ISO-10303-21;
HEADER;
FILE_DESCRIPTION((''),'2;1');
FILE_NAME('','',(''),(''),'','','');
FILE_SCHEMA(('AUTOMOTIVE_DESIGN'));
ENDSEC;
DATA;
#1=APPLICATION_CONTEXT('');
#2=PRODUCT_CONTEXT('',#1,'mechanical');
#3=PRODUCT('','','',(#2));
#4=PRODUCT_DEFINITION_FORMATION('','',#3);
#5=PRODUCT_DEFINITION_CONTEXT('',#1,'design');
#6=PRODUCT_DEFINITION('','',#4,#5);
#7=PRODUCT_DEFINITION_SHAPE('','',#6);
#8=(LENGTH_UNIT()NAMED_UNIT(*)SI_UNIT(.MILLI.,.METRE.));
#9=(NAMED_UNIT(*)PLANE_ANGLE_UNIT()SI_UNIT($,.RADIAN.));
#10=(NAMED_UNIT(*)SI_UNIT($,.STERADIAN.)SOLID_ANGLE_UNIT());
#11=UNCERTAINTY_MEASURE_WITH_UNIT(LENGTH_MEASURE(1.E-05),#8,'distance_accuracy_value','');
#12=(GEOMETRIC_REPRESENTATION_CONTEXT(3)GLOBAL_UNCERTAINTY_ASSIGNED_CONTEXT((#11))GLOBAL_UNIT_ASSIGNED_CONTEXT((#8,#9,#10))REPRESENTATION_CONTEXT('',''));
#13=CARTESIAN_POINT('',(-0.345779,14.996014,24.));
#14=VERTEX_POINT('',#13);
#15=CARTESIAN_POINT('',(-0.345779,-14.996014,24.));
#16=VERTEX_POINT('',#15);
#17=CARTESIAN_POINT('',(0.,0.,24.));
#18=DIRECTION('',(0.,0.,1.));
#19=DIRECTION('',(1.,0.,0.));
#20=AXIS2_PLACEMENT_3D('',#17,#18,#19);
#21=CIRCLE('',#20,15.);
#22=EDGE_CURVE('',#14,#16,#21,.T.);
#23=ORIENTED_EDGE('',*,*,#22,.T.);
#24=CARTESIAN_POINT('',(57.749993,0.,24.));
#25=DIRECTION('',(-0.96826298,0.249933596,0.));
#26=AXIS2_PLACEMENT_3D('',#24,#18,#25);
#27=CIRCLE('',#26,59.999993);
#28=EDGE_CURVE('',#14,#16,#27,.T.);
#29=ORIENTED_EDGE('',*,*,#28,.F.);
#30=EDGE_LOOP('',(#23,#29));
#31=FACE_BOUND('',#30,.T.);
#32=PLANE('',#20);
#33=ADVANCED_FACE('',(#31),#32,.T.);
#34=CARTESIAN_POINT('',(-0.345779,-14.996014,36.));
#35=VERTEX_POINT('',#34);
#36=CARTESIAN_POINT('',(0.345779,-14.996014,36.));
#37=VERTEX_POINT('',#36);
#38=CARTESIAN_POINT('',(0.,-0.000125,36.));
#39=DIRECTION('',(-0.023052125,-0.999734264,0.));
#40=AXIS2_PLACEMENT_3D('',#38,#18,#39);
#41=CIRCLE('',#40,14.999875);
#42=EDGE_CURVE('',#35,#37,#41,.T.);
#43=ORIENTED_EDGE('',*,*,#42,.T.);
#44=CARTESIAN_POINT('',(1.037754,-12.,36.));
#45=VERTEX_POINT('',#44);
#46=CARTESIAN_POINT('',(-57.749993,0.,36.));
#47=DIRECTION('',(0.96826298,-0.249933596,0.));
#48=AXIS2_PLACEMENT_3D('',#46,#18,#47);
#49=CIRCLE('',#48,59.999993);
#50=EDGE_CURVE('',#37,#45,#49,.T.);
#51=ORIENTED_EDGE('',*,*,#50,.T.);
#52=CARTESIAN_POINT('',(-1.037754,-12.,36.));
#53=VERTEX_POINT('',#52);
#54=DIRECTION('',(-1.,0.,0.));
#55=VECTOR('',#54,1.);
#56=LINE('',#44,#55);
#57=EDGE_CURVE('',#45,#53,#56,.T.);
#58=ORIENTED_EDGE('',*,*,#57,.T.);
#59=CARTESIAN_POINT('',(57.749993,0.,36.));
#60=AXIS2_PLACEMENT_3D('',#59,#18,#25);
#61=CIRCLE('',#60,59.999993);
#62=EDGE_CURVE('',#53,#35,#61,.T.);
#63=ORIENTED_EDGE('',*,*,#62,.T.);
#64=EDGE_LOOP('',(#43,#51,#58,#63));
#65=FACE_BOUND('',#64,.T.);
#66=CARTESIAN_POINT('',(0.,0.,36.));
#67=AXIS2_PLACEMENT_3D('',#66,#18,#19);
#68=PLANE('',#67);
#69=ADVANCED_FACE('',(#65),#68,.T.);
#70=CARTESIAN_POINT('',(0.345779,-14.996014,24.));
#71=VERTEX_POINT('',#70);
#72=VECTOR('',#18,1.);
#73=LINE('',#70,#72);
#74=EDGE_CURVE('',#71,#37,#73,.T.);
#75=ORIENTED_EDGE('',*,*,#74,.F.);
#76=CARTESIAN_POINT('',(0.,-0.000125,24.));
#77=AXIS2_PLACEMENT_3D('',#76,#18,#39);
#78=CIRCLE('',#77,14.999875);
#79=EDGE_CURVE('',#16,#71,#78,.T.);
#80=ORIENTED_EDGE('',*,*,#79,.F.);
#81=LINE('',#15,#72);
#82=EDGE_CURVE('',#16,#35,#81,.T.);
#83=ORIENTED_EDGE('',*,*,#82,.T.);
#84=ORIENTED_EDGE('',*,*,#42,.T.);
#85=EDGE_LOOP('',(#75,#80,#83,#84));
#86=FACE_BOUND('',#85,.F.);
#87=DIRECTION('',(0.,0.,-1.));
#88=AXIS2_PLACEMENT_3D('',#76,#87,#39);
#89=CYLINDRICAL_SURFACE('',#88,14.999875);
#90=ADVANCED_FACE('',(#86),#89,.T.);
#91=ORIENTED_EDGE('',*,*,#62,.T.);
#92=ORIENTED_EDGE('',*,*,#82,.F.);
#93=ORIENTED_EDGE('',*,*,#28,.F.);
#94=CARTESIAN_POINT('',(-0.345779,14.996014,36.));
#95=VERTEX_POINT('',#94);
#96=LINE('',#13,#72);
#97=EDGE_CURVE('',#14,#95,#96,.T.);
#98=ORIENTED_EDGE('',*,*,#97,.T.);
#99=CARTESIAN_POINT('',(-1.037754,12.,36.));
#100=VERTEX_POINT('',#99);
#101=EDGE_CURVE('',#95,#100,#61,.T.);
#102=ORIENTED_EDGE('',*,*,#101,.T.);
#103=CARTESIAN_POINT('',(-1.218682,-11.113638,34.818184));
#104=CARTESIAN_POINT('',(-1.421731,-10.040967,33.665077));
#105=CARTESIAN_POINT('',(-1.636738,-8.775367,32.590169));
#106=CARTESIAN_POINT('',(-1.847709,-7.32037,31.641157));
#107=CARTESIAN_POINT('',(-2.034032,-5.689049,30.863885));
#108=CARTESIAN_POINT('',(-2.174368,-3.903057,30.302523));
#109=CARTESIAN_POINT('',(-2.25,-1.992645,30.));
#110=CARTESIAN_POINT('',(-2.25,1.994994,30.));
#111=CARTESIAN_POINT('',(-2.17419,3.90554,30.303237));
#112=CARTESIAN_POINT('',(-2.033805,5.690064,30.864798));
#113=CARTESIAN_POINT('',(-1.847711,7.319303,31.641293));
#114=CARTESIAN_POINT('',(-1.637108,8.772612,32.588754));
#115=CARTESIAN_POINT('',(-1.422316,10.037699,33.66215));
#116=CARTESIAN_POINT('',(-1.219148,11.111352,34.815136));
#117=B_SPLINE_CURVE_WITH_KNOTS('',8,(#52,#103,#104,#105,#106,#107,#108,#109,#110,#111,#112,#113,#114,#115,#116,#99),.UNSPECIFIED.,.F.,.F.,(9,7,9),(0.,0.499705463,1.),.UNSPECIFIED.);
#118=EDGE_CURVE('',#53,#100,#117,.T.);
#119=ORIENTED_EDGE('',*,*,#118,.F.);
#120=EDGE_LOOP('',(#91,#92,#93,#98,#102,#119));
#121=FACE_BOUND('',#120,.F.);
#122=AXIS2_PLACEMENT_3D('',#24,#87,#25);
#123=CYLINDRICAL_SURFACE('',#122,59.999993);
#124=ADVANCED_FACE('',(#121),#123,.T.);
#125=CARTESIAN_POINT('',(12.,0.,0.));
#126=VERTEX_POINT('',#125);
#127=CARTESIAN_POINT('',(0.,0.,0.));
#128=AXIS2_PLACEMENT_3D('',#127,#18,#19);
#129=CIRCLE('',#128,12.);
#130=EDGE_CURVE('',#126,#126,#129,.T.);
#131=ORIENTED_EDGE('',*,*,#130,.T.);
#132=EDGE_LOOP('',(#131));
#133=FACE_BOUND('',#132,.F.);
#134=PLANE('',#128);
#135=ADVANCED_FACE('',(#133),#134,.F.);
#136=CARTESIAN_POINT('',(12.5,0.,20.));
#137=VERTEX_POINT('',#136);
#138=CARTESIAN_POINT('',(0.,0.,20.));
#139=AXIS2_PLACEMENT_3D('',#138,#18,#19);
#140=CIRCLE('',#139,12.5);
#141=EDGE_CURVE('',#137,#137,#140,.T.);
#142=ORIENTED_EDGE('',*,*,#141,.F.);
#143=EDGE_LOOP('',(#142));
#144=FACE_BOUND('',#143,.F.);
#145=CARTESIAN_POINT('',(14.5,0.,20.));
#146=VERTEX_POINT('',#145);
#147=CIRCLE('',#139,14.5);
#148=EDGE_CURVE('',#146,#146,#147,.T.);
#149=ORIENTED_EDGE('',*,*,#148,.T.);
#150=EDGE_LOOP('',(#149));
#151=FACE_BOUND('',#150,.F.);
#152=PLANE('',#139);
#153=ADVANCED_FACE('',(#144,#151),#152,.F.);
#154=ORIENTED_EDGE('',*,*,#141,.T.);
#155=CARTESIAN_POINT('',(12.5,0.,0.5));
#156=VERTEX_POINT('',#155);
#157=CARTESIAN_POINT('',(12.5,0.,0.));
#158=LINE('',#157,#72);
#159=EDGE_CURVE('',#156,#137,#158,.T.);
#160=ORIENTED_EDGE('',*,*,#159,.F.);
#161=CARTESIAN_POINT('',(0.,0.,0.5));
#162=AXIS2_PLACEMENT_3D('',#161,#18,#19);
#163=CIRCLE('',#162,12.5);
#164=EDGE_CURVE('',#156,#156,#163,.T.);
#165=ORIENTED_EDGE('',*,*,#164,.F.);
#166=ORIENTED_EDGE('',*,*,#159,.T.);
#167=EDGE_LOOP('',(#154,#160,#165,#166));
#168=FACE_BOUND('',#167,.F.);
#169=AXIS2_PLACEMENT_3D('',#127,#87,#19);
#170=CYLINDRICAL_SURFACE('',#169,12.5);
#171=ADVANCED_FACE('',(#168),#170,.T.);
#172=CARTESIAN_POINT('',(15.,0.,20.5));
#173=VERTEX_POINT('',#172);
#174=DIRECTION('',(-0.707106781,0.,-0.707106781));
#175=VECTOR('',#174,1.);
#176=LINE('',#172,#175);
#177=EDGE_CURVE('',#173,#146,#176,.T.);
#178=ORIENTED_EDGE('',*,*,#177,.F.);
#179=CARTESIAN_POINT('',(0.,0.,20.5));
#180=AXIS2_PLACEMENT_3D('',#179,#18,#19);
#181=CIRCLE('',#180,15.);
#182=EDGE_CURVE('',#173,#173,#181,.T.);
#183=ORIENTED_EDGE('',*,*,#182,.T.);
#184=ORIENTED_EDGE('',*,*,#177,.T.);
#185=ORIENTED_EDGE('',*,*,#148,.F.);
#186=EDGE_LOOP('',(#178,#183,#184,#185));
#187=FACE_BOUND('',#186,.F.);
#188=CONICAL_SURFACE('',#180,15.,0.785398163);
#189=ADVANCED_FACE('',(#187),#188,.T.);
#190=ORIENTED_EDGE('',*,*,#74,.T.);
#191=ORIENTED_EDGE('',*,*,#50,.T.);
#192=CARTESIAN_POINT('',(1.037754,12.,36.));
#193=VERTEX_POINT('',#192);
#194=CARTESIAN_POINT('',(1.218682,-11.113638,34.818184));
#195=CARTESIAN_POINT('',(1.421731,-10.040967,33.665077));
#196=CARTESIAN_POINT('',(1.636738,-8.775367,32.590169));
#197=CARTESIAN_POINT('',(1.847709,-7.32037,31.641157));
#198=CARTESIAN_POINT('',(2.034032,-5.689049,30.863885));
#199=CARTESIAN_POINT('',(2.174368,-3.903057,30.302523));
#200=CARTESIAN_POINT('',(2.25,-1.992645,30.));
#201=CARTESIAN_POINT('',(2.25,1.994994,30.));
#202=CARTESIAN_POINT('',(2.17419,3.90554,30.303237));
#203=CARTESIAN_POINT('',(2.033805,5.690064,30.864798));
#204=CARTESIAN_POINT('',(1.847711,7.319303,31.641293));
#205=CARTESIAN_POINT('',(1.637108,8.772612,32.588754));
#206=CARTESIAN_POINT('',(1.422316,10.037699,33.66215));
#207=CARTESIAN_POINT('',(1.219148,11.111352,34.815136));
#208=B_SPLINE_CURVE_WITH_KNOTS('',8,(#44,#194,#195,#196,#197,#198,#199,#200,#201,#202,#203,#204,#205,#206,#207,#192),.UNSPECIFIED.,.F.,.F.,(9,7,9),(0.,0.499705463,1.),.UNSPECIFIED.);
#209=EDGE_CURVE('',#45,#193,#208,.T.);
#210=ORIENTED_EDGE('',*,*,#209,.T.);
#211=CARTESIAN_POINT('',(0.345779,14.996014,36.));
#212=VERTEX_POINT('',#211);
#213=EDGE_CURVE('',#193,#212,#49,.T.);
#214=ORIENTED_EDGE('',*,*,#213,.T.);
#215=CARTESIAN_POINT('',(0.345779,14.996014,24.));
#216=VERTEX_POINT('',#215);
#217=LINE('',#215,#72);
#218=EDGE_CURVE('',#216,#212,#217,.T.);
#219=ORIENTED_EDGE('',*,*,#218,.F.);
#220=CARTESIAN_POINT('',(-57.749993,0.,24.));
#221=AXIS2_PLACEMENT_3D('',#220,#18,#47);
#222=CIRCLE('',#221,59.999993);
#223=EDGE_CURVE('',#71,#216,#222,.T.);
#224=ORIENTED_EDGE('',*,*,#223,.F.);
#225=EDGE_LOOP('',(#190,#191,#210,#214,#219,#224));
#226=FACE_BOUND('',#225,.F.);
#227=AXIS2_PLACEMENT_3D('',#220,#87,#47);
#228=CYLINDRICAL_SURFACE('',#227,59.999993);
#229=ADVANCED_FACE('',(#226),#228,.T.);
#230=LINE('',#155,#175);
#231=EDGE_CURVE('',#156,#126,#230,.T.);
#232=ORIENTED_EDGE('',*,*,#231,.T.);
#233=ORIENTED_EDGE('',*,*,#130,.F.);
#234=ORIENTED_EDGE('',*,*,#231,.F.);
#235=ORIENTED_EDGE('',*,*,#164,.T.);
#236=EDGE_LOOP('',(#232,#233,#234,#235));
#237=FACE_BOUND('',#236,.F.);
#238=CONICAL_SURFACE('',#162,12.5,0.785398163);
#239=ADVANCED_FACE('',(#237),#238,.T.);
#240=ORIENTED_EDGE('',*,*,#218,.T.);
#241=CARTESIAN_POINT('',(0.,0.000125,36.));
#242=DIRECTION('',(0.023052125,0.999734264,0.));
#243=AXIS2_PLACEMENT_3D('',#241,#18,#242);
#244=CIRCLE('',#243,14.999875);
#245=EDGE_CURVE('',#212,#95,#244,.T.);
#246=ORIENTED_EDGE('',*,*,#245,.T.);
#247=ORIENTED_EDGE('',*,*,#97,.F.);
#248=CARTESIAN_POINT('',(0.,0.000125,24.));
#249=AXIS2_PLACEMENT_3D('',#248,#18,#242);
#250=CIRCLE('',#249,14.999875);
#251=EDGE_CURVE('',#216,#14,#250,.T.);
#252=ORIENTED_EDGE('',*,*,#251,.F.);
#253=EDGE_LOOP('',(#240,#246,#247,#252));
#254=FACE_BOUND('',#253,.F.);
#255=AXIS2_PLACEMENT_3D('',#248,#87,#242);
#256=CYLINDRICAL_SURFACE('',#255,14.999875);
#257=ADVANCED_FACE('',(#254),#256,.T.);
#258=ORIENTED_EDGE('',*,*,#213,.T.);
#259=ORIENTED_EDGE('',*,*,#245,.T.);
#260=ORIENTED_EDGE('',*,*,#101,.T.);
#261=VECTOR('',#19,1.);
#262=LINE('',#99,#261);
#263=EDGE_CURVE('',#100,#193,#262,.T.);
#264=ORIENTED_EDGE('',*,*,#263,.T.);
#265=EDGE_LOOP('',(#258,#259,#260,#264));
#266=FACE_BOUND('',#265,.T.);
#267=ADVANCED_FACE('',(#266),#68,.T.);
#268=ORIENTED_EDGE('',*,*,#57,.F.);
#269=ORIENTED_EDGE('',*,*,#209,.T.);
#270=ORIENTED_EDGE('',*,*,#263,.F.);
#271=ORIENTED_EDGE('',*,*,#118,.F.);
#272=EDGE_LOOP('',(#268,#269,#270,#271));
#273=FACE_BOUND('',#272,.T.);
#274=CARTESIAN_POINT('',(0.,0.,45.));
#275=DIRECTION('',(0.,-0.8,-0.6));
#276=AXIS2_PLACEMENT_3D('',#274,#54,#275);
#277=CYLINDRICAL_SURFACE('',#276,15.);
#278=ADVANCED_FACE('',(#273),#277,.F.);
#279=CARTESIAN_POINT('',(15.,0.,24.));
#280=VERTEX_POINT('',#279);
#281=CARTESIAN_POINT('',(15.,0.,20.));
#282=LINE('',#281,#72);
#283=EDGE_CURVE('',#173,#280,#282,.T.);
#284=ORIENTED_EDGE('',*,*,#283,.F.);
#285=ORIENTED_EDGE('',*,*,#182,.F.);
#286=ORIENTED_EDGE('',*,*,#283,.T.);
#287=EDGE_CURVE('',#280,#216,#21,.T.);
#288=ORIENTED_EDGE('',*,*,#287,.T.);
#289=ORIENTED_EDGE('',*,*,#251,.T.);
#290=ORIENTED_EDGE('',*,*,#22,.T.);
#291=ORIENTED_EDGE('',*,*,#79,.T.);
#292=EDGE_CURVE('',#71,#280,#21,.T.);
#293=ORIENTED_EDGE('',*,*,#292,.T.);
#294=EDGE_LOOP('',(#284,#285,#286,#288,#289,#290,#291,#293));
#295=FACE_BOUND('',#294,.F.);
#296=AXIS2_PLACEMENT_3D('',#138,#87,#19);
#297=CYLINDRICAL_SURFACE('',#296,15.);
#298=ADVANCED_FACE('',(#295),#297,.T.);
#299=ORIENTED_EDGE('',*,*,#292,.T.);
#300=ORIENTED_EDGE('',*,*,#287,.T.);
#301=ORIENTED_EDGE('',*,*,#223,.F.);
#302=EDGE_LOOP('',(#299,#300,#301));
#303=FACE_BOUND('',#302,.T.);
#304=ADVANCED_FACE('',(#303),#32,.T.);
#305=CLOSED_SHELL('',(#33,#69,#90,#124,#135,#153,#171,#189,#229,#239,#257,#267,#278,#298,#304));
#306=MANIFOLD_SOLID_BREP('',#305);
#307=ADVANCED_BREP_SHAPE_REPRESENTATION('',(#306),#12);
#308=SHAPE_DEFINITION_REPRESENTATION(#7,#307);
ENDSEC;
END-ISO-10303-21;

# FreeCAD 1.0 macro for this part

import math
import FreeCAD as App
import Part
import Sketcher
from FreeCAD import Vector
Q = App.Units.Quantity


def edges_at(feature, points):
    """Names of the edges that pass closest to the given points."""
    edges = feature.Shape.Edges
    near = lambda p: min(range(len(edges)), key=lambda i: edges[i].distToShape(Part.Vertex(*p))[0])
    return sorted({f"Edge{near(p) + 1}" for p in points})

doc = App.newDocument("Part")
body = doc.addObject("PartDesign::Body", "Body")

# Sketch on XY plane
sketch1 = body.newObject("Sketcher::SketchObject", "Sketch")
sketch1.AttachmentSupport = (doc.getObject("XY_Plane"), [""])
sketch1.MapMode = "FlatFace"
sketch1.addGeometry(Part.Circle(Vector(0, 0, 0), Vector(0, 0, 1), 12), False)
sketch1.addConstraint([
    Sketcher.Constraint("Coincident", 0, 3, -1, 1),
    Sketcher.Constraint("Diameter", 0, Q("25 mm")),
])
pad1 = body.newObject("PartDesign::Pad", "Pad")
pad1.Profile = sketch1
pad1.Length = 20

# Sketch on XY plane
sketch2 = body.newObject("Sketcher::SketchObject", "Sketch001")
sketch2.AttachmentSupport = (doc.getObject("XY_Plane"), [""])
sketch2.MapMode = "FlatFace"
sketch2.AttachmentOffset = App.Placement(Vector(0, 0, 20), App.Rotation())
sketch2.addGeometry(Part.Circle(Vector(0, 0, 0), Vector(0, 0, 1), 15), False)
sketch2.addConstraint([
    Sketcher.Constraint("Coincident", 0, 3, -1, 1),
    Sketcher.Constraint("Diameter", 0, Q("30 mm")),
])
pad2 = body.newObject("PartDesign::Pad", "Pad001")
pad2.Profile = sketch2
pad2.Length = 4

# Sketch on XY plane
sketch3 = body.newObject("Sketcher::SketchObject", "Sketch002")
sketch3.AttachmentSupport = (doc.getObject("XY_Plane"), [""])
sketch3.MapMode = "FlatFace"
sketch3.AttachmentOffset = App.Placement(Vector(0, 0, 24), App.Rotation())
sketch3.addGeometry([
    Part.ArcOfCircle(Part.Circle(Vector(57.749993, 0, 0), Vector(0, 0, 1), 59.999993), math.radians(165.526417), math.radians(194.473583)),
    Part.ArcOfCircle(Part.Circle(Vector(0, -0.000125, 0), Vector(0, 0, 1), 14.999875), math.radians(-91.320906), math.radians(-88.679094)),
    Part.ArcOfCircle(Part.Circle(Vector(-57.749993, 0, 0), Vector(0, 0, 1), 59.999993), math.radians(-14.473583), math.radians(14.473583)),
    Part.ArcOfCircle(Part.Circle(Vector(0, 0.000125, 0), Vector(0, 0, 1), 14.999875), math.radians(88.679094), math.radians(91.320906)),
], False)
sketch3.addConstraint([
    Sketcher.Constraint("Coincident", 0, 2, 1, 1),
    Sketcher.Constraint("Coincident", 1, 2, 2, 1),
    Sketcher.Constraint("Coincident", 2, 2, 3, 1),
    Sketcher.Constraint("Coincident", 3, 2, 0, 1),
    Sketcher.Constraint("Equal", 0, 2),
    Sketcher.Constraint("Equal", 1, 3),
    Sketcher.Constraint("Symmetric", 0, 3, 2, 3, -1, 1),
    Sketcher.Constraint("Symmetric", 1, 3, 3, 3, -1, 1),
    Sketcher.Constraint("PointOnObject", 0, 3, -1),
    Sketcher.Constraint("PointOnObject", 1, 3, -2),
    Sketcher.Constraint("Radius", 0, Q("59.999993 mm")),
    Sketcher.Constraint("Radius", 1, Q("14.999875 mm")),
    Sketcher.Constraint("DistanceX", 0, 2, -1, 1, Q("0.345779 mm")),
    Sketcher.Constraint("DistanceY", 1, 3, 3, 3, Q("0.00025 mm")),
])
pad3 = body.newObject("PartDesign::Pad", "Pad002")
pad3.Profile = sketch3
pad3.Length = 12

# Sketch on YZ plane
sketch4 = body.newObject("Sketcher::SketchObject", "Sketch003")
sketch4.AttachmentSupport = (doc.getObject("YZ_Plane"), [""])
sketch4.MapMode = "FlatFace"
sketch4.addGeometry([
    Part.LineSegment(Vector(-12, 37, 0), Vector(-12, 36, 0)),
    Part.ArcOfCircle(Part.Circle(Vector(0, 45, 0), Vector(0, 0, 1), 15), math.radians(-143), math.radians(-37)),
    Part.LineSegment(Vector(12, 36, 0), Vector(12, 37, 0)),
    Part.LineSegment(Vector(12, 37, 0), Vector(-12, 37, 0)),
], False)
sketch4.addConstraint([
    Sketcher.Constraint("Coincident", 0, 2, 1, 1),
    Sketcher.Constraint("Coincident", 1, 2, 2, 1),
    Sketcher.Constraint("Coincident", 2, 2, 3, 1),
    Sketcher.Constraint("Coincident", 3, 2, 0, 1),
    Sketcher.Constraint("Vertical", 0),
    Sketcher.Constraint("Vertical", 2),
    Sketcher.Constraint("Horizontal", 3),
    Sketcher.Constraint("Symmetric", 0, 2, 1, 2, -2),
    Sketcher.Constraint("Radius", 1, Q("15 mm")),
    Sketcher.Constraint("DistanceX", 3, 2, 3, 1, Q("24 mm")),
    Sketcher.Constraint("DistanceY", 0, 2, 0, 1, Q("1 mm")),
    Sketcher.Constraint("DistanceY", -1, 1, 1, 3, Q("45 mm")),
])
pocket1 = body.newObject("PartDesign::Pocket", "Pocket")
pocket1.Profile = sketch4
pocket1.Type = "ThroughAll"
pocket1.Midplane = True
doc.recompute()

chamfer = body.newObject("PartDesign::Chamfer", "Chamfer")
chamfer.Base = (pocket1, edges_at(pocket1, [(-12.5, 0, 0), (-15, 0, 20)]))
chamfer.Size = 0.5

doc.recompute()
